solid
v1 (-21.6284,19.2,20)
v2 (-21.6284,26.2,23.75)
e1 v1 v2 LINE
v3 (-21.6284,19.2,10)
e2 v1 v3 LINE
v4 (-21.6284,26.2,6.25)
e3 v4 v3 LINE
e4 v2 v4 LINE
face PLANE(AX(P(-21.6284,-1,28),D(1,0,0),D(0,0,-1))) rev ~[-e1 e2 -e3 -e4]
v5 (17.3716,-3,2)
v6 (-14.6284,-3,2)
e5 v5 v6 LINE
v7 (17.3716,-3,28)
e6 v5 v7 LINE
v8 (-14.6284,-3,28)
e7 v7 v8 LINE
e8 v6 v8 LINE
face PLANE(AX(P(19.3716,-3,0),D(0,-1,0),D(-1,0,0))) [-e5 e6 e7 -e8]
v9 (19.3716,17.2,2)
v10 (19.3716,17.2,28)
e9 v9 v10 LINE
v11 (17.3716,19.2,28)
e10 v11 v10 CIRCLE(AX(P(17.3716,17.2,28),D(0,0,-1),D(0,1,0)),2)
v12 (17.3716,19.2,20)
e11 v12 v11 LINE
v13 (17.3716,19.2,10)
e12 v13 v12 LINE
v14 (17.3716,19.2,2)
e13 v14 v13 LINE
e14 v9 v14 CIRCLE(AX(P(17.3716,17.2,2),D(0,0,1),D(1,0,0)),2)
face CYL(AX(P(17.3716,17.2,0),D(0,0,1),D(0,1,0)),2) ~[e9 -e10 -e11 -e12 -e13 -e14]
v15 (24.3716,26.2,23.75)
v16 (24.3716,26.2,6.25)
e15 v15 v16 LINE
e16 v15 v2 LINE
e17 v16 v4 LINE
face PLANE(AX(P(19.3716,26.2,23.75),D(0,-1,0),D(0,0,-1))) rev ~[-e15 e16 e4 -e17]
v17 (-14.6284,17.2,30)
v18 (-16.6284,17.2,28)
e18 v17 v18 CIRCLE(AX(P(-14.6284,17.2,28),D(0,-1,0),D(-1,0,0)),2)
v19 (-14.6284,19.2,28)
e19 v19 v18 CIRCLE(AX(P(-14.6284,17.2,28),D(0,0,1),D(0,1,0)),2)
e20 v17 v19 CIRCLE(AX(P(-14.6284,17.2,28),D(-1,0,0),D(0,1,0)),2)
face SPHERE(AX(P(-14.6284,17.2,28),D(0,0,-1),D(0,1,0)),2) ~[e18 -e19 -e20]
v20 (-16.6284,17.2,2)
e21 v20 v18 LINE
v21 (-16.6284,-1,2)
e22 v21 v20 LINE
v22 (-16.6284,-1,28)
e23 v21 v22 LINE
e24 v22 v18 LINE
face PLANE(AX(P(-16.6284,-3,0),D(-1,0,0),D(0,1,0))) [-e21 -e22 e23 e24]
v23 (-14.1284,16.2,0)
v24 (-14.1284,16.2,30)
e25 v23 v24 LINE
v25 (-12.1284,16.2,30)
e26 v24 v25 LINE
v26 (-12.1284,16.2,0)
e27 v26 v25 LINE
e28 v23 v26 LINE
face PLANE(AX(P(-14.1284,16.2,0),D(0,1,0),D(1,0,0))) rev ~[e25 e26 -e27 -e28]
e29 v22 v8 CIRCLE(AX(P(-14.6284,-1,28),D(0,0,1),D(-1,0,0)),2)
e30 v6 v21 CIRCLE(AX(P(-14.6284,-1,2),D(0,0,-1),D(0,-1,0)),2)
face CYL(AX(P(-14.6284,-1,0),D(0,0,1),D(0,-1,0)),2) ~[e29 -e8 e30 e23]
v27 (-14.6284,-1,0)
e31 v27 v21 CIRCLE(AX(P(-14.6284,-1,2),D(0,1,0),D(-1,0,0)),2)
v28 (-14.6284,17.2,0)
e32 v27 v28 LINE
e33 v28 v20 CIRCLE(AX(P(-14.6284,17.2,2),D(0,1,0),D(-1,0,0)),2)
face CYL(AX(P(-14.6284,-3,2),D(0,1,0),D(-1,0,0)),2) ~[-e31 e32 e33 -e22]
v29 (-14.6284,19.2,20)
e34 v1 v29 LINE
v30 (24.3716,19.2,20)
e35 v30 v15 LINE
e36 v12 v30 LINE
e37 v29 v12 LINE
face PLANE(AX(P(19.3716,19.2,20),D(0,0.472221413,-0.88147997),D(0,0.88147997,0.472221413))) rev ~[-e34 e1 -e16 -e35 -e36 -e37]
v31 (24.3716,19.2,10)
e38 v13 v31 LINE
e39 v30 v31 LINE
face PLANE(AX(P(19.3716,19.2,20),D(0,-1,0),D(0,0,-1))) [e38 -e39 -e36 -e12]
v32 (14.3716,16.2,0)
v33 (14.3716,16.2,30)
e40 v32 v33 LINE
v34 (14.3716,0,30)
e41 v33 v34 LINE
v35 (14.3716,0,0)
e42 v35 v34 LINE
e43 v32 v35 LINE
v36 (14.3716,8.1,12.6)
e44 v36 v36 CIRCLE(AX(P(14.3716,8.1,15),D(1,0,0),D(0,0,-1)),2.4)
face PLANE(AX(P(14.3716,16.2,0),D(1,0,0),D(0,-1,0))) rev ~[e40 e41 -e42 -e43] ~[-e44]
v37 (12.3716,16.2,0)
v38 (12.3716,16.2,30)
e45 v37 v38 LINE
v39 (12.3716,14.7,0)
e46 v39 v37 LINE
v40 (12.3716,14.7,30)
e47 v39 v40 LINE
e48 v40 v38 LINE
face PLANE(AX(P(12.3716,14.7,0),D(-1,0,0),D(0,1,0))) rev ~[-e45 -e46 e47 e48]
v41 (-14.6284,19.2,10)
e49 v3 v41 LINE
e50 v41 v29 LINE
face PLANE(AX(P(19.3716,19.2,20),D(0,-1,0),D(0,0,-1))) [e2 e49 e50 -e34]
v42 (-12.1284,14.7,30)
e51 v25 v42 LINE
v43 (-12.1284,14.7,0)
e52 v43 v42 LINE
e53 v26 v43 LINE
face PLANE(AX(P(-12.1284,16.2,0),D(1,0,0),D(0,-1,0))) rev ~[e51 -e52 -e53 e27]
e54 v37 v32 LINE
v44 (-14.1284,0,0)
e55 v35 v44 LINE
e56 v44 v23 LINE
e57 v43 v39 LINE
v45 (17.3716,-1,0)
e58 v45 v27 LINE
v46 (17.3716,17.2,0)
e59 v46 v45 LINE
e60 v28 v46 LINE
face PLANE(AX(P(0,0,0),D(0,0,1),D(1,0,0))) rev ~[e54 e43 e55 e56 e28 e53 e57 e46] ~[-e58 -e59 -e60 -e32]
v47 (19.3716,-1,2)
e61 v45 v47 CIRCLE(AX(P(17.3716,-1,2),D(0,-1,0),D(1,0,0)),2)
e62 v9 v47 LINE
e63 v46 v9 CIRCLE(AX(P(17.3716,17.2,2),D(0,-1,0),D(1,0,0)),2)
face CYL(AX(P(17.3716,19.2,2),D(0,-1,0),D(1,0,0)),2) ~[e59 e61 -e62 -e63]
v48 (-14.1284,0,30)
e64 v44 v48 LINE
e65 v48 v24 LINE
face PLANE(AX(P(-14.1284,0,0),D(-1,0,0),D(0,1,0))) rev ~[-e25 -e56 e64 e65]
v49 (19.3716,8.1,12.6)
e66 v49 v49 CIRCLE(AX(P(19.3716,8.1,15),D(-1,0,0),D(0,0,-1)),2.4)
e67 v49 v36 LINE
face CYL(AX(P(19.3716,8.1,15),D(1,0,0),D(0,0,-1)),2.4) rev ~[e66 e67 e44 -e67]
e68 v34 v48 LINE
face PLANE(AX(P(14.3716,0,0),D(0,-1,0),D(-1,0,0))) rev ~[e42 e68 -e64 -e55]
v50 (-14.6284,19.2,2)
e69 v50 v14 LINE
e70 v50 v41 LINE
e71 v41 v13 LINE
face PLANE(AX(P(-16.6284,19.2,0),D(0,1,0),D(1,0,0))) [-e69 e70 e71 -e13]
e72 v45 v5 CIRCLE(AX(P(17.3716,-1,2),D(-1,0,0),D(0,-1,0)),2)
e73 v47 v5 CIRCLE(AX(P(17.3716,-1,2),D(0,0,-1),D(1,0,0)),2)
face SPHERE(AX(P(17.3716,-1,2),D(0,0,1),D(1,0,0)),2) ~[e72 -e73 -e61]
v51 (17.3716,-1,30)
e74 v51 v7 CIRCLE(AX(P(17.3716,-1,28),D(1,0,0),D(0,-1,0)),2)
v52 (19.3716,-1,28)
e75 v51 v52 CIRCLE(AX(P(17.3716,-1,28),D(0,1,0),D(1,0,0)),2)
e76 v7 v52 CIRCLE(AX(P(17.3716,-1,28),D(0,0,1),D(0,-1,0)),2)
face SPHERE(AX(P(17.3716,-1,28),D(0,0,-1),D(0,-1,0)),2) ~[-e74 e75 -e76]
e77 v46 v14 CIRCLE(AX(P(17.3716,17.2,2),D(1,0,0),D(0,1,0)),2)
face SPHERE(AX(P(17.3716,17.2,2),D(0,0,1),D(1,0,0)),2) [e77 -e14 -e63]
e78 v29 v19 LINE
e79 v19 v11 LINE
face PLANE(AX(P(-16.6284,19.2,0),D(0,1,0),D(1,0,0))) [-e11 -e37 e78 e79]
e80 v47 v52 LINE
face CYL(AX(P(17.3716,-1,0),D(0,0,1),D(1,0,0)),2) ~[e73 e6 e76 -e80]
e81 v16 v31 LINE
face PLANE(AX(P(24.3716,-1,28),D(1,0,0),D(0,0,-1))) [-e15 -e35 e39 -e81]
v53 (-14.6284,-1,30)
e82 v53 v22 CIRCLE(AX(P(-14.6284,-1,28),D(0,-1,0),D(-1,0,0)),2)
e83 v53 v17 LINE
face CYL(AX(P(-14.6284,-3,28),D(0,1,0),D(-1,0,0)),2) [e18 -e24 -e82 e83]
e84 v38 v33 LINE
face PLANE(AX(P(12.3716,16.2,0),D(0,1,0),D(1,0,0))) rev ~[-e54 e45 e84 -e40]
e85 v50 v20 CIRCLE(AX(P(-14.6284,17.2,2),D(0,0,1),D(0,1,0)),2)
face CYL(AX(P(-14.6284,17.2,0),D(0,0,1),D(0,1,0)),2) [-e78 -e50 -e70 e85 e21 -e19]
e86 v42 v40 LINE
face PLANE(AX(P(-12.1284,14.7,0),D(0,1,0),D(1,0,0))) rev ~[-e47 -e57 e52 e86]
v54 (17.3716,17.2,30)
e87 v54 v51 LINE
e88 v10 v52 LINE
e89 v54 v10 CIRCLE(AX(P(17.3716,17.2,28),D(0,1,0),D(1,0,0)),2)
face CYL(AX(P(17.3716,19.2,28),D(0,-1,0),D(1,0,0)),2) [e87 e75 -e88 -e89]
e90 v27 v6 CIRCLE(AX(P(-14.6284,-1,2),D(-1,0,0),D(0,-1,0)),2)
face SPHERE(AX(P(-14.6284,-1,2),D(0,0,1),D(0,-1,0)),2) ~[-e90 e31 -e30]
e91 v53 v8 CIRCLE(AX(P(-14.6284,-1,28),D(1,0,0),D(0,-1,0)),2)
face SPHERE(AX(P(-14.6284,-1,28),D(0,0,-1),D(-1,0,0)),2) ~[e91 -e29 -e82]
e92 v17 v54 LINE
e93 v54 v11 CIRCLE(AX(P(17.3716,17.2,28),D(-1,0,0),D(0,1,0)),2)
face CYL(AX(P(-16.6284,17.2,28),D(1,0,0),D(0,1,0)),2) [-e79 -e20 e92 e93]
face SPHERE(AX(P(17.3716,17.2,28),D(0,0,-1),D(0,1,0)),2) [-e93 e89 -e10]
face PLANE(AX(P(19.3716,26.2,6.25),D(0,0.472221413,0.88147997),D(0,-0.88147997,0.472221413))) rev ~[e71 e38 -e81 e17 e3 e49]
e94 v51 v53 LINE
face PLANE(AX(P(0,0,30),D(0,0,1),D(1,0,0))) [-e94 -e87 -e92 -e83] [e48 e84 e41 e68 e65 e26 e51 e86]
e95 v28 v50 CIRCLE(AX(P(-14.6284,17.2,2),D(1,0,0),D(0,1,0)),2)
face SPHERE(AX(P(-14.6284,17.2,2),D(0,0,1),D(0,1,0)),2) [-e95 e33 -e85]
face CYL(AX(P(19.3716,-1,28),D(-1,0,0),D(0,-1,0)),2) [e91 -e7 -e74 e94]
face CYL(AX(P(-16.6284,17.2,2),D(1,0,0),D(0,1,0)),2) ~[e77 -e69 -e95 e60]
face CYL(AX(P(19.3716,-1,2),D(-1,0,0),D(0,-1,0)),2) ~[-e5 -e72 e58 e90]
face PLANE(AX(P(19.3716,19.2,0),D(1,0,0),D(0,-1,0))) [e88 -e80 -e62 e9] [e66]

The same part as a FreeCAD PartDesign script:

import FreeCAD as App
import Part
import Sketcher
from FreeCAD import Vector


def edges_at(feature, points):
    """Names of the edges that pass closest to the given points."""
    edges = feature.Shape.Edges
    near = lambda p: min(range(len(edges)), key=lambda i: edges[i].distToShape(Part.Vertex(*p))[0])
    return sorted({f"Edge{near(p) + 1}" for p in points})


def add_polygon(sketch, points):
    """Adds a closed chain of lines whose ends are joined by coincident constraints."""
    first, n = sketch.GeometryCount, len(points)
    for a, b in zip(points, points[1:] + points[:1]):
        sketch.addGeometry(Part.LineSegment(App.Vector(*a, 0), App.Vector(*b, 0)), False)
    for i in range(n):
        sketch.addConstraint(Sketcher.Constraint("Coincident", first + i, 2, first + (i + 1) % n, 1))

doc = App.newDocument("Part")
body = doc.addObject("PartDesign::Body", "Body")

sketch1 = body.newObject("Sketcher::SketchObject", "Sketch")
sketch1.AttachmentSupport = (doc.getObject("XY_Plane"), [""])
sketch1.MapMode = "FlatFace"
add_polygon(sketch1, [(19.4, 19.2), (-16.6, 19.2), (-16.6, -3), (19.4, -3)])
add_polygon(sketch1, [(14.4, 0), (-14.1, 0), (-14.1, 16.2), (-12.1, 16.2), (-12.1, 14.7), (12.4, 14.7), (12.4, 16.2), (14.4, 16.2)])
sketch1.addConstraint(Sketcher.Constraint("Horizontal", 0))
sketch1.addConstraint(Sketcher.Constraint("Vertical", 1))
sketch1.addConstraint(Sketcher.Constraint("Horizontal", 2))
sketch1.addConstraint(Sketcher.Constraint("Vertical", 3))
sketch1.addConstraint(Sketcher.Constraint("Horizontal", 4))
sketch1.addConstraint(Sketcher.Constraint("Vertical", 5))
sketch1.addConstraint(Sketcher.Constraint("Horizontal", 6))
sketch1.addConstraint(Sketcher.Constraint("Vertical", 7))
sketch1.addConstraint(Sketcher.Constraint("Horizontal", 8))
sketch1.addConstraint(Sketcher.Constraint("Vertical", 9))
sketch1.addConstraint(Sketcher.Constraint("Horizontal", 10))
sketch1.addConstraint(Sketcher.Constraint("Vertical", 11))
sketch1.addConstraint(Sketcher.Constraint("PointOnObject", 4, 2, -1))
sketch1.addConstraint(Sketcher.Constraint("Horizontal", 6, 2, 9, 2))
sketch1.addConstraint(Sketcher.Constraint("Equal", 6, 10))
sketch1.addConstraint(Sketcher.Constraint("DistanceX", 6, 1, 6, 2, 2.0))
sketch1.addConstraint(Sketcher.Constraint("DistanceX", 4, 2, 4, 1, 28.5))
sketch1.addConstraint(Sketcher.Constraint("DistanceY", 5, 1, 5, 2, 16.2))
sketch1.addConstraint(Sketcher.Constraint("DistanceY", 7, 2, 7, 1, 1.5))
sketch1.addConstraint(Sketcher.Constraint("DistanceY", 1, 2, -1, 1, 3.0))
sketch1.addConstraint(Sketcher.Constraint("DistanceY", 5, 2, 0, 2, 3.0))
sketch1.addConstraint(Sketcher.Constraint("DistanceX", 10, 2, 3, 2, 5.0))
sketch1.addConstraint(Sketcher.Constraint("DistanceX", 1, 2, 4, 2, 2.5))
sketch1.addConstraint(Sketcher.Constraint("DistanceX", 0, 2, -1, 1, 16.6284))
pad1 = body.newObject("PartDesign::Pad", "Pad")
pad1.Profile = sketch1
pad1.Length = 30
doc.recompute()

fillet = body.newObject("PartDesign::Fillet", "Fillet")
fillet.Base = (pad1, edges_at(pad1, [
    (19.372, 19.2, 15),
    (19.372, -3, 15),
    (-16.628, -3, 15),
    (-16.628, 19.2, 15),
    (1.372, 19.2, 30),
    (-16.628, 8.1, 30),
    (1.372, -3, 30),
    (19.372, 8.1, 30),
    (19.372, 8.1, 0),
    (1.372, -3, 0),
    (1.372, 19.2, 0),
    (-16.628, 8.1, 0),
]))
fillet.Radius = 2

sketch2 = body.newObject("Sketcher::SketchObject", "Sketch001")
sketch2.AttachmentSupport = (doc.getObject("YZ_Plane"), [""])
sketch2.MapMode = "FlatFace"
sketch2.AttachmentOffset = App.Placement(Vector(0, 0, 19.3716), App.Rotation())
add_polygon(sketch2, [(26, 24), (19, 20), (19, 10), (26, 6)])
sketch2.addConstraint(Sketcher.Constraint("Vertical", 1))
sketch2.addConstraint(Sketcher.Constraint("Vertical", 3))
sketch2.addConstraint(Sketcher.Constraint("Equal", 0, 2))
sketch2.addConstraint(Sketcher.Constraint("DistanceY", 1, 2, 1, 1, 10.0))
sketch2.addConstraint(Sketcher.Constraint("DistanceY", 3, 1, 3, 2, 17.5))
sketch2.addConstraint(Sketcher.Constraint("DistanceY", -1, 1, 1, 2, 10.0))
sketch2.addConstraint(Sketcher.Constraint("DistanceX", 1, 2, 2, 2, 7.0))
sketch2.addConstraint(Sketcher.Constraint("DistanceX", -1, 1, 0, 2, 19.2))
pad2 = body.newObject("PartDesign::Pad", "Pad001")
pad2.Profile = sketch2
pad2.Type = "TwoLengths"
pad2.Length = 41
pad2.Length2 = 5
pad2.Reversed = True

sketch3 = body.newObject("Sketcher::SketchObject", "Sketch002")
sketch3.AttachmentSupport = (doc.getObject("YZ_Plane"), [""])
sketch3.MapMode = "FlatFace"
sketch3.AttachmentOffset = App.Placement(Vector(0, 0, 19.3716), App.Rotation())
sketch3.addGeometry(Part.Circle(Vector(8.1, 15, 0), Vector(0, 0, 1), 2.4), False)
sketch3.addConstraint(Sketcher.Constraint("Diameter", 0, 4.8))
sketch3.addConstraint(Sketcher.Constraint("DistanceY", -1, 1, 0, 3, 15.0))
sketch3.addConstraint(Sketcher.Constraint("DistanceX", -1, 1, 0, 3, 8.1))
pocket1 = body.newObject("PartDesign::Pocket", "Pocket")
pocket1.Profile = sketch3
pocket1.Length = 10

doc.recompute()
